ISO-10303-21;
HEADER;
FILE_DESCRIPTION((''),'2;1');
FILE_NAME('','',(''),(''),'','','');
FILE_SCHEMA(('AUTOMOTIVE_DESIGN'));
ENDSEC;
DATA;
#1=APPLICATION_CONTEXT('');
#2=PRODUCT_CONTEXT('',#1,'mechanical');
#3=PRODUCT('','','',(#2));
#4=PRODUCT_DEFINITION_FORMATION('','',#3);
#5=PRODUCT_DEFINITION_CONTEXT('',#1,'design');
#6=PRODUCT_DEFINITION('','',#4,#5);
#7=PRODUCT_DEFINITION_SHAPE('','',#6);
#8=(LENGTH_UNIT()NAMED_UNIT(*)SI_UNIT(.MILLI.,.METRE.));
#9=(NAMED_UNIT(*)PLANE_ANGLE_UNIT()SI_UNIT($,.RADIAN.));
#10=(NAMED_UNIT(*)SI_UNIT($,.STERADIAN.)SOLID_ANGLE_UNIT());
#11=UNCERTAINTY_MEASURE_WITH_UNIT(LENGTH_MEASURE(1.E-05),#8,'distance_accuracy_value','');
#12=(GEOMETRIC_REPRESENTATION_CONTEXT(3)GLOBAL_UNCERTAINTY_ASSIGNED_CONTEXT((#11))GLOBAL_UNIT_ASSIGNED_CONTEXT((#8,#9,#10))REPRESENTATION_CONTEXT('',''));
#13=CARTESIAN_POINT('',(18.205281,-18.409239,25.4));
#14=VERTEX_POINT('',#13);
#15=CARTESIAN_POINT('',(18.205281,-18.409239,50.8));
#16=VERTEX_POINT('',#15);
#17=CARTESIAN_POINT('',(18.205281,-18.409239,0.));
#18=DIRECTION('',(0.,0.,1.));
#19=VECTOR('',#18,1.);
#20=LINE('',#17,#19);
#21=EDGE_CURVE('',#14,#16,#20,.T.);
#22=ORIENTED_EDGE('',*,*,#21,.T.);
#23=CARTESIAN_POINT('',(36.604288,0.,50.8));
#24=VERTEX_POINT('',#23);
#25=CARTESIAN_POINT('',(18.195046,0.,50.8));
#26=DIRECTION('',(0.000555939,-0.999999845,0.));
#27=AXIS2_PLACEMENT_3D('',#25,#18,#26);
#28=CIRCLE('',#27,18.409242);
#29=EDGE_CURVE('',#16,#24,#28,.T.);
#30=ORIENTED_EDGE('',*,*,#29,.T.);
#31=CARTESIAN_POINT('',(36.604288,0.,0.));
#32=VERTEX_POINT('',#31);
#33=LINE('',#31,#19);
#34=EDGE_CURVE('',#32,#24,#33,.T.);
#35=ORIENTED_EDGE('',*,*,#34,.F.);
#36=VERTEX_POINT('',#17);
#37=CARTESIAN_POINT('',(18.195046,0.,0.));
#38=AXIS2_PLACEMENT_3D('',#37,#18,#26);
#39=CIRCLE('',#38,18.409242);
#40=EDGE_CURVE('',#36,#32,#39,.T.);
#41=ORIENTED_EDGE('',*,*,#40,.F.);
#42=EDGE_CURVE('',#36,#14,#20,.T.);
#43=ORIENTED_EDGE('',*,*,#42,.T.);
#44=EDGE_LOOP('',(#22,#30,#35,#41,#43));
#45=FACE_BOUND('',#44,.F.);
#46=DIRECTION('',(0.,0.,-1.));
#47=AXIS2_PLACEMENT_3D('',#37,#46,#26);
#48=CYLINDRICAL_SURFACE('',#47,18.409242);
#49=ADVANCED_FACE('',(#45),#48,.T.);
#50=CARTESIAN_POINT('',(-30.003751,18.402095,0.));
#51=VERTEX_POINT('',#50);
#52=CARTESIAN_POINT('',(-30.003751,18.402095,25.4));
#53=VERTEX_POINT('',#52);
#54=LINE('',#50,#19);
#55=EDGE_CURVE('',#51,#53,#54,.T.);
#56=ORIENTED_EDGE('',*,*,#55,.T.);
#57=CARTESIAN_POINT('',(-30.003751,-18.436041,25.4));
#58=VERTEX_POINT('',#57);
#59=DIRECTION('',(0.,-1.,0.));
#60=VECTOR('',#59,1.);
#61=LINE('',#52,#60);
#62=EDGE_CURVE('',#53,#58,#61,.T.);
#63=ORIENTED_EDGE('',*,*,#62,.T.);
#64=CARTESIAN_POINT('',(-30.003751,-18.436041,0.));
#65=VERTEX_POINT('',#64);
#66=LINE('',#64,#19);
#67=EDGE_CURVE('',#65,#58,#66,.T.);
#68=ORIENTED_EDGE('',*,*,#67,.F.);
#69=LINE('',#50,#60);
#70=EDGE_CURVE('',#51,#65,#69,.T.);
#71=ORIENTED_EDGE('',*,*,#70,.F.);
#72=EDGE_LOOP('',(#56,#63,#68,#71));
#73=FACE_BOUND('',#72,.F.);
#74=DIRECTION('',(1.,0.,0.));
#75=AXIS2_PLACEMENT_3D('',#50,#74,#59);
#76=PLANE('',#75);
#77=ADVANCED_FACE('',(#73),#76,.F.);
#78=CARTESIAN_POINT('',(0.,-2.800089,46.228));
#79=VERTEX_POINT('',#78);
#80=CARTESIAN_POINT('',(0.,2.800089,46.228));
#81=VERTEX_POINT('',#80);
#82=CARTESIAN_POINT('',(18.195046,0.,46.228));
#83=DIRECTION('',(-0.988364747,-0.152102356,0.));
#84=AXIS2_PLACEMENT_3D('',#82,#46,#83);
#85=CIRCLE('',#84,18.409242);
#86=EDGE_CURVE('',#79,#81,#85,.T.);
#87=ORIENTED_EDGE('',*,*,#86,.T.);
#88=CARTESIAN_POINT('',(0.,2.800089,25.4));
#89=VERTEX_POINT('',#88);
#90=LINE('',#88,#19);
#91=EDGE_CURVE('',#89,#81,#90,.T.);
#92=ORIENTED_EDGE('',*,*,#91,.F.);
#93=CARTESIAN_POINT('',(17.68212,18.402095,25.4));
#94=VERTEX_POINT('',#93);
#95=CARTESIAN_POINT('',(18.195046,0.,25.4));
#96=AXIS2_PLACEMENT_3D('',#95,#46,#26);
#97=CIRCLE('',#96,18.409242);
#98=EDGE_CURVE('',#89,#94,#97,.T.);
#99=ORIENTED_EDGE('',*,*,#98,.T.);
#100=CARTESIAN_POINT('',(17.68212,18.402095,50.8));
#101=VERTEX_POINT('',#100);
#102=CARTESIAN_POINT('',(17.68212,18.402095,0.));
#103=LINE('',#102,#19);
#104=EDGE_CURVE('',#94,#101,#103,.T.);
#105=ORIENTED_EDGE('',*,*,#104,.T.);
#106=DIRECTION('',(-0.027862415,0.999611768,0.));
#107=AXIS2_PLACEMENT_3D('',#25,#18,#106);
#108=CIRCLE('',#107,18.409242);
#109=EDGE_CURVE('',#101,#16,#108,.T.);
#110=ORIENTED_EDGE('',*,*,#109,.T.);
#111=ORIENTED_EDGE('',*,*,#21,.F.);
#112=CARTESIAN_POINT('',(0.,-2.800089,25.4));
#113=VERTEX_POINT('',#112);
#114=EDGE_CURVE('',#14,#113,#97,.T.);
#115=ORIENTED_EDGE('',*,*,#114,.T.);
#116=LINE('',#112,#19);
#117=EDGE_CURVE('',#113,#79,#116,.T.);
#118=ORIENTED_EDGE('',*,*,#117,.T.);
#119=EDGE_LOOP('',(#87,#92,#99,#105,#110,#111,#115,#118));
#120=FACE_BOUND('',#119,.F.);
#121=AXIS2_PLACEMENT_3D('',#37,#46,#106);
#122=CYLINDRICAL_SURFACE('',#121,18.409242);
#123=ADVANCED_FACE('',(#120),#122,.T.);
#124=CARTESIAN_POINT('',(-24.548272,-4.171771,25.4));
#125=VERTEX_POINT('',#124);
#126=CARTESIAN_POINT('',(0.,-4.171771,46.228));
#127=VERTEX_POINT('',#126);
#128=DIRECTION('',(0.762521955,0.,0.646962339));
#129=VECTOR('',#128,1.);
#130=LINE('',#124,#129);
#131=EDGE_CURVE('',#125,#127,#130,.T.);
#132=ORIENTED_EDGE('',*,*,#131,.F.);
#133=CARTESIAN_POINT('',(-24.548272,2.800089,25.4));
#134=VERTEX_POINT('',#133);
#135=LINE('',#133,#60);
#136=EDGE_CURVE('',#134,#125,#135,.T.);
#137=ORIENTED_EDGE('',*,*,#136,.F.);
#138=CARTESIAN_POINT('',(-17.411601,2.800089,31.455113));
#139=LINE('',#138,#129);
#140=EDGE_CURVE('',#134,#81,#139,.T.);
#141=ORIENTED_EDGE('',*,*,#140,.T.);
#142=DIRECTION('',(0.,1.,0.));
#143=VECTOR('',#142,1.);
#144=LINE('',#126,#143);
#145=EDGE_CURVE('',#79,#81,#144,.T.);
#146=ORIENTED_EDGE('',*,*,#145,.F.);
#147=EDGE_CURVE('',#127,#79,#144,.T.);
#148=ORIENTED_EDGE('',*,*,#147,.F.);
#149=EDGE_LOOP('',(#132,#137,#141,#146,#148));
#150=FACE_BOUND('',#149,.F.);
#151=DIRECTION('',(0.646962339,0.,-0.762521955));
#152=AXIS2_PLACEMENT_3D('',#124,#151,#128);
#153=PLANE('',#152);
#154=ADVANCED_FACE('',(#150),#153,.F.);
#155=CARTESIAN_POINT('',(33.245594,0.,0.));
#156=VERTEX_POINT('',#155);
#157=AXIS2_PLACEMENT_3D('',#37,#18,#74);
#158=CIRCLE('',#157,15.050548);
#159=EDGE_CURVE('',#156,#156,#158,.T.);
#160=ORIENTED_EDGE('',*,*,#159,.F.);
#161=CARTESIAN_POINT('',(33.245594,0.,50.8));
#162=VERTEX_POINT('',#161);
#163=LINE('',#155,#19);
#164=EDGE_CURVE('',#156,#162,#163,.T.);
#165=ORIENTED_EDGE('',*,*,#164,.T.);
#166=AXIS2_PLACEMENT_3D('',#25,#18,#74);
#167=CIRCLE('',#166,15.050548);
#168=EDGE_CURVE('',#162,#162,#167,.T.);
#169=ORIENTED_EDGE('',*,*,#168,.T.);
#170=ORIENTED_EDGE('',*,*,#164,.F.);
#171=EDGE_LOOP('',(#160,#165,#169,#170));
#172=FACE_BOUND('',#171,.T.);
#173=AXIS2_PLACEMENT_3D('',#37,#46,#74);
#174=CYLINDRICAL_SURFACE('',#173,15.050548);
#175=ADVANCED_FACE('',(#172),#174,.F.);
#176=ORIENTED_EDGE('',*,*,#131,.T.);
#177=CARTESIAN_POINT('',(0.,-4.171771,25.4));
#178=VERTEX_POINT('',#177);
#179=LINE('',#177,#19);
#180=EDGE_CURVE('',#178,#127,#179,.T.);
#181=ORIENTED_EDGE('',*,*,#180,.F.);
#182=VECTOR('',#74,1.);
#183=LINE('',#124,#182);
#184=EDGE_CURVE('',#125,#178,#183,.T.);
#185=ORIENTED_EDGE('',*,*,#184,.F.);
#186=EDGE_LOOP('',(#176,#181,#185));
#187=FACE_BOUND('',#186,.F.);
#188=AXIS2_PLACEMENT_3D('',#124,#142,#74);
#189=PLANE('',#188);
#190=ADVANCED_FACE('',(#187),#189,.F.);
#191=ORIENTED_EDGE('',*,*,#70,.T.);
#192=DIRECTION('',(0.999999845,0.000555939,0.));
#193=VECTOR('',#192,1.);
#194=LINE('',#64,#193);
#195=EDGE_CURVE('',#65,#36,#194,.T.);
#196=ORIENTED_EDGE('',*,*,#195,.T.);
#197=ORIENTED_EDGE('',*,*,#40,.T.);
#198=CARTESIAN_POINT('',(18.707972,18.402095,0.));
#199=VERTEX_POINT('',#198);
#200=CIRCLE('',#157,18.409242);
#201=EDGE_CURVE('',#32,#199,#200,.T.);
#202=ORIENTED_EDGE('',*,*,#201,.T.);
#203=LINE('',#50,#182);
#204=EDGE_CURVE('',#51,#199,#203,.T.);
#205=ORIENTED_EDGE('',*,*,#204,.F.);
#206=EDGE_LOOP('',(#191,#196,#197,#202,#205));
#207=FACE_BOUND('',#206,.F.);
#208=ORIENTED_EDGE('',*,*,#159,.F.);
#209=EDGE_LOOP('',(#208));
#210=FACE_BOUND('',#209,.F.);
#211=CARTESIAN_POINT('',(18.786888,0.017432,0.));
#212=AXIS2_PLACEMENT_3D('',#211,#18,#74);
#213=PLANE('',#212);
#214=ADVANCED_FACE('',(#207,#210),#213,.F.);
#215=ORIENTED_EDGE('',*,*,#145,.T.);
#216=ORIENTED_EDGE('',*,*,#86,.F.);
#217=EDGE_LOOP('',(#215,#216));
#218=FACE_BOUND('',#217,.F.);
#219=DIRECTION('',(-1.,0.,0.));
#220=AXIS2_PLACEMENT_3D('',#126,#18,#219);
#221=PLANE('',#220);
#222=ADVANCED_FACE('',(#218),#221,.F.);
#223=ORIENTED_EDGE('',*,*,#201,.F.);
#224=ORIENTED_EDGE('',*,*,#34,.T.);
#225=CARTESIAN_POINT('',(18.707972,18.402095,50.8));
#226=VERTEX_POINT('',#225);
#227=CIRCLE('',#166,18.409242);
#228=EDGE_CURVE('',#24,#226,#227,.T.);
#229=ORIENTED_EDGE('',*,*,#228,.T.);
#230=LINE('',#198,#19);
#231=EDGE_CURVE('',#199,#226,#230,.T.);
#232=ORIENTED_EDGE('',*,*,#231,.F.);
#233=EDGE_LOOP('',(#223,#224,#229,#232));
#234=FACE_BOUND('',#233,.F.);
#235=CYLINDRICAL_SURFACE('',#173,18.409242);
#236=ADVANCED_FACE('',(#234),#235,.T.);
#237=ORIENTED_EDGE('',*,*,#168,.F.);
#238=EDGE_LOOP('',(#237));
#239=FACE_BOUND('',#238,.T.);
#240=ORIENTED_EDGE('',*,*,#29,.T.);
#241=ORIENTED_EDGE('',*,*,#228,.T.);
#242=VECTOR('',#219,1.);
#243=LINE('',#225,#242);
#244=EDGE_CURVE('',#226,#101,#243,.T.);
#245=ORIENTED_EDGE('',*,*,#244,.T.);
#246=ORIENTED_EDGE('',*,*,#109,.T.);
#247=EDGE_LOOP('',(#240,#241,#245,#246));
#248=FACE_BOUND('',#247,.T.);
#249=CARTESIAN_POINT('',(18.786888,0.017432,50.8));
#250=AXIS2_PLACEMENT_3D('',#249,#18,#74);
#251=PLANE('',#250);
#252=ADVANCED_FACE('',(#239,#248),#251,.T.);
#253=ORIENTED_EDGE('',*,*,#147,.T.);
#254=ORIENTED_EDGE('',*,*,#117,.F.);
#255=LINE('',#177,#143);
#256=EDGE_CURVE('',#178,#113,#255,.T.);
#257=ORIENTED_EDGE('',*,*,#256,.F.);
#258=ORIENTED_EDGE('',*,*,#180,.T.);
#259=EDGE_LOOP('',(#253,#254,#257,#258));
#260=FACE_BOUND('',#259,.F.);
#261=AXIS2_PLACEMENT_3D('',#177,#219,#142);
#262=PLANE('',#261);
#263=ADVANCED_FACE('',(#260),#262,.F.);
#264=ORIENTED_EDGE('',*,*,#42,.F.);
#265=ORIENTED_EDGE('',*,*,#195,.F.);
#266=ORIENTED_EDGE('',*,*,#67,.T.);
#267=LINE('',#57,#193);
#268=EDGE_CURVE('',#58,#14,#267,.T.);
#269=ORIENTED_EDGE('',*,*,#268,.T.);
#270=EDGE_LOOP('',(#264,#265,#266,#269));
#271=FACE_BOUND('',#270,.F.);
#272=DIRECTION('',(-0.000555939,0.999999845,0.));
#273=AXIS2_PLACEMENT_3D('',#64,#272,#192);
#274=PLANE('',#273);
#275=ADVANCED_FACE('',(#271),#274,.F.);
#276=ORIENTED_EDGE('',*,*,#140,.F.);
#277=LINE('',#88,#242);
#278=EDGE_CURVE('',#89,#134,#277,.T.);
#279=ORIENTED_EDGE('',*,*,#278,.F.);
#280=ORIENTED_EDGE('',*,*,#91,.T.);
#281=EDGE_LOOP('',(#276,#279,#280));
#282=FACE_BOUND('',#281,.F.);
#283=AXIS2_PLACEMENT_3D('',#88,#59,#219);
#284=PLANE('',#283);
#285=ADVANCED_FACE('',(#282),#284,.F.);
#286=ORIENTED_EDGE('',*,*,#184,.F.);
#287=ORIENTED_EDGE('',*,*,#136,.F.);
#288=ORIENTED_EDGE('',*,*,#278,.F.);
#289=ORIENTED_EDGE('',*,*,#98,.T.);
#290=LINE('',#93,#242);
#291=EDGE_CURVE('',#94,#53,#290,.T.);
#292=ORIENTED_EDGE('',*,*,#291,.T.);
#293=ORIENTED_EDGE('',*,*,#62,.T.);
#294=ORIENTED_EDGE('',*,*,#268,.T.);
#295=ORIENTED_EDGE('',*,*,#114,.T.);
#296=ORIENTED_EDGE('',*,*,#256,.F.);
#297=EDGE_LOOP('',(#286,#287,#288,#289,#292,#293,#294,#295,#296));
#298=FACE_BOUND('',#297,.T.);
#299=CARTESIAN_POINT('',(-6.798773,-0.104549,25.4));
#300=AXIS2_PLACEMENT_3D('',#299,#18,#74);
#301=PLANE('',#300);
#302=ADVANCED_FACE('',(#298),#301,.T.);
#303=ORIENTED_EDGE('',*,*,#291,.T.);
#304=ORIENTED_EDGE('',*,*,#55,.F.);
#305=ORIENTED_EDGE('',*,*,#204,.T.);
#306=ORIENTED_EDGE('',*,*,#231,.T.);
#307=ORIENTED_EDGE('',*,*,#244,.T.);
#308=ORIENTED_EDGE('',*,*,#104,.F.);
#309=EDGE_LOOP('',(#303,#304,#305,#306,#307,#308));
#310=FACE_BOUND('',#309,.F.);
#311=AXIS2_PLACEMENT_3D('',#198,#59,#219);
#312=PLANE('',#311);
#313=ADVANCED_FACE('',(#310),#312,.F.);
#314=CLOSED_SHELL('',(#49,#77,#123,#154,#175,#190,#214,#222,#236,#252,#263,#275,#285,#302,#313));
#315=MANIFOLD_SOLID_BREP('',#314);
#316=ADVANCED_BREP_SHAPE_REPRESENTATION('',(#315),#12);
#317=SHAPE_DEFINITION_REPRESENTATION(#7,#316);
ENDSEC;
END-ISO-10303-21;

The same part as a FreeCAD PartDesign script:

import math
import FreeCAD as App
import Part
import Sketcher

V = App.Vector
Q = App.Units.Quantity


def add_polygon(sketch, points):
    """Adds a closed chain of lines whose ends are joined by coincident constraints."""
    first, n = sketch.GeometryCount, len(points)
    for a, b in zip(points, points[1:] + points[:1]):
        sketch.addGeometry(Part.LineSegment(App.Vector(*a, 0), App.Vector(*b, 0)), False)
    for i in range(n):
        sketch.addConstraint(Sketcher.Constraint("Coincident", first + i, 2, first + (i + 1) % n, 1))

doc = App.newDocument("Part")
params = doc.addObject("Spreadsheet::Sheet", "Params")
for row, (alias, value) in enumerate([
    ("pad1_length", "1 in"),
    ("pad2_length", "2 in"),
    ("pad3_length", "0.82 in"),
    ("sketch4_height", "0.82 in"),
    ("pocket1_length", "1 in"),
], start=1):
    params.set(f"A{row}", alias)
    params.set(f"B{row}", "=" + value)
    params.setAlias(f"B{row}", alias)

body = doc.addObject("PartDesign::Body", "Body")

# Sketch on XY plane
sketch1 = body.newObject("Sketcher::SketchObject", "Sketch")
sketch1.AttachmentSupport = (doc.getObject("XY_Plane"), [""])
sketch1.MapMode = "FlatFace"
sketch1.addGeometry([
    Part.LineSegment(V(-30.003751, -18.436041, 0), V(18.205281, -18.409239, 0)),
    Part.ArcOfCircle(Part.Circle(V(18.195046, 0, 0), V(0, 0, 1), 18.409242), math.radians(91.596605), math.radians(270.031853)),
    Part.LineSegment(V(17.68212, 18.402095, 0), V(-30.003751, 18.402095, 0)),
    Part.LineSegment(V(-30.003751, 18.402095, 0), V(-30.003751, -18.436041, 0)),
], False)
sketch1.addConstraint([
    Sketcher.Constraint("Tangent", 0, 2, 1, 2),
    Sketcher.Constraint("Coincident", 1, 1, 2, 1),
    Sketcher.Constraint("Coincident", 2, 2, 3, 1),
    Sketcher.Constraint("Coincident", 3, 2, 0, 1),
    Sketcher.Constraint("Horizontal", 2),
    Sketcher.Constraint("Vertical", 3),
    Sketcher.Constraint("PointOnObject", 1, 3, -1),
    Sketcher.Constraint("Radius", 1, 18.409242),
    Sketcher.Constraint("DistanceX", 2, 2, 2, 1, 47.685871),
    Sketcher.Constraint("DistanceY", 3, 2, 0, 2, 0.026801),
    Sketcher.Constraint("Distance", 0, 48.209039),
    Sketcher.Constraint("DistanceX", -1, 1, 0, 2, 18.205281),
])
pad1 = body.newObject("PartDesign::Pad", "Pad")
pad1.Profile = sketch1
pad1.setExpression("Length", "Params.pad1_length")

# Sketch on XY plane
sketch2 = body.newObject("Sketcher::SketchObject", "Sketch001")
sketch2.AttachmentSupport = (doc.getObject("XY_Plane"), [""])
sketch2.MapMode = "FlatFace"
sketch2.addGeometry([
    Part.ArcOfCircle(Part.Circle(V(18.195046, 0, 0), V(0, 0, 1), 18.409242), math.radians(-89.968147), math.radians(0)),  # 0
    Part.ArcOfCircle(Part.Circle(V(18.195046, 0, 0), V(0, 0, 1), 18.409242), math.radians(0), math.radians(88.403395)),  # 1
    Part.LineSegment(V(18.707972, 18.402095, 0), V(17.68212, 18.402095, 0)),  # 2
    Part.ArcOfCircle(Part.Circle(V(18.195046, 0, 0), V(0, 0, 1), 18.409242), math.radians(91.596605), math.radians(270.031853)),  # 3
    Part.Circle(V(18.195046, 0, 0), V(0, 0, 1), 15.050548),  # 4
], False)
sketch2.addConstraint([
    Sketcher.Constraint("Tangent", 0, 2, 1, 1),
    Sketcher.Constraint("Coincident", 1, 2, 2, 1),
    Sketcher.Constraint("Coincident", 2, 2, 3, 1),
    Sketcher.Constraint("Tangent", 3, 2, 0, 1),
    Sketcher.Constraint("Horizontal", 2),
    Sketcher.Constraint("Coincident", 4, 3, 0, 3),
    Sketcher.Constraint("Equal", 0, 1),
    Sketcher.Constraint("Equal", 1, 3),
    Sketcher.Constraint("PointOnObject", 0, 3, -1),
    Sketcher.Constraint("PointOnObject", 0, 2, -1),
    Sketcher.Constraint("Diameter", 4, 30.101097),
    Sketcher.Constraint("Radius", 0, 18.409242),
    Sketcher.Constraint("DistanceX", 2, 2, 2, 1, 1.025852),
    Sketcher.Constraint("DistanceX", -1, 1, 0, 2, 36.604288),
    Sketcher.Constraint("DistanceX", -1, 1, 3, 2, 18.205281),
])
pad2 = body.newObject("PartDesign::Pad", "Pad001")
pad2.Profile = sketch2
pad2.setExpression("Length", "Params.pad2_length")

# Sketch on XY plane
sketch3 = body.newObject("Sketcher::SketchObject", "Sketch002")
sketch3.AttachmentSupport = (doc.getObject("XY_Plane"), [""])
sketch3.MapMode = "FlatFace"
sketch3.AttachmentOffset = App.Placement(V(0, 0, 1 * 25.4), App.Rotation())
sketch3.addGeometry([
    Part.ArcOfCircle(Part.Circle(V(18.195046, 0, 0), V(0, 0, 1), 18.409242), math.radians(171.251219), math.radians(188.748781)),  # 0
    Part.LineSegment(V(0, 2.800089, 0), V(-24.548272, 2.800089, 0)),  # 1
    Part.LineSegment(V(-24.548272, 2.800089, 0), V(-24.548272, -4.171771, 0)),  # 2
    Part.LineSegment(V(-24.548272, -4.171771, 0), V(0, -4.171771, 0)),  # 3
    Part.LineSegment(V(0, -4.171771, 0), V(0, -2.800089, 0)),  # 4
], False)
sketch3.addConstraint([
    Sketcher.Constraint("Coincident", 0, 1, 1, 1),
    Sketcher.Constraint("Coincident", 1, 2, 2, 1),
    Sketcher.Constraint("Coincident", 2, 2, 3, 1),
    Sketcher.Constraint("Coincident", 3, 2, 4, 1),
    Sketcher.Constraint("Coincident", 4, 2, 0, 2),
    Sketcher.Constraint("Horizontal", 1),
    Sketcher.Constraint("Vertical", 2),
    Sketcher.Constraint("Horizontal", 3),
    Sketcher.Constraint("Vertical", 4),
    Sketcher.Constraint("Symmetric", 0, 1, 4, 2, -1, 1),
    Sketcher.Constraint("PointOnObject", 0, 3, -1),
    Sketcher.Constraint("Radius", 0, 18.409242),
    Sketcher.Constraint("DistanceX", 1, 2, 1, 1, 24.548272),
    Sketcher.Constraint("DistanceY", 2, 2, 2, 1, 6.97186),
    Sketcher.Constraint("DistanceY", 4, 1, 4, 2, 1.371681),
])
pad3 = body.newObject("PartDesign::Pad", "Pad002")
pad3.Profile = sketch3
pad3.setExpression("Length", "Params.pad3_length")

# Sketch on XZ plane
sketch4 = body.newObject("Sketcher::SketchObject", "Sketch003")
sketch4.AttachmentSupport = (doc.getObject("XZ_Plane"), [""])
sketch4.MapMode = "FlatFace"
sketch4.AttachmentOffset = App.Placement(V(0, 0, 4.171771), App.Rotation())
add_polygon(sketch4, [(-24.548272, 25.4), (0, 46.228), (-24.548272, 46.228)])  # lines 0-2
sketch4.addConstraint([
    Sketcher.Constraint("Horizontal", 1),
    Sketcher.Constraint("Vertical", 2),
    Sketcher.Constraint("PointOnObject", 0, 2, -2),
    Sketcher.Constraint("DistanceY", -1, 1, 2, 2, Q("1 in")),
    Sketcher.Constraint("DistanceY", 2, 2, 2, 1, Q("0.82 in")),
    Sketcher.Constraint("DistanceX", 1, 2, 1, 1, 24.548272),
])
sketch4.setExpression("Constraints[7]", "Params.sketch4_height")
pocket1 = body.newObject("PartDesign::Pocket", "Pocket")
pocket1.Profile = sketch4
pocket1.setExpression("Length", "Params.pocket1_length")

doc.recompute()
